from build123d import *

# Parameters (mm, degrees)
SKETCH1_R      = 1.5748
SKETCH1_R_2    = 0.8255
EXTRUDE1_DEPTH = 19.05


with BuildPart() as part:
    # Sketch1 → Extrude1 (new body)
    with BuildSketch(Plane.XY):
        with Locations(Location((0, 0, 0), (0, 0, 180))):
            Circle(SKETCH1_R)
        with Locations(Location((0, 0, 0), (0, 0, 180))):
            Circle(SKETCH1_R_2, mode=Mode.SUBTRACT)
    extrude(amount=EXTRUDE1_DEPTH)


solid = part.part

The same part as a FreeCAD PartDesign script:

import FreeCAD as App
import Part
import Sketcher
Q = App.Units.Quantity

doc = App.newDocument("Part")
body = doc.addObject("PartDesign::Body", "Body")

sketch1 = body.newObject("Sketcher::SketchObject", "Sketch")
sketch1.AttachmentSupport = (doc.getObject("XY_Plane"), [""])
sketch1.MapMode = "FlatFace"
sketch1.addGeometry(Part.Circle(App.Vector(0, 0, 0), App.Vector(0, 0, 1), 1.6), False)
sketch1.addGeometry(Part.Circle(App.Vector(0, 0, 0), App.Vector(0, 0, 1), 0.8), False)
sketch1.addConstraint(Sketcher.Constraint("Coincident", 0, 3, -1, 1))
sketch1.addConstraint(Sketcher.Constraint("Coincident", 1, 3, -1, 1))
sketch1.addConstraint(Sketcher.Constraint("Diameter", 0, Q("0.124 in")))
sketch1.addConstraint(Sketcher.Constraint("Diameter", 1, Q("0.065 in")))
pad1 = body.newObject("PartDesign::Pad", "Pad")
pad1.Profile = sketch1
pad1.Length = Q("0.75 in")

doc.recompute()
